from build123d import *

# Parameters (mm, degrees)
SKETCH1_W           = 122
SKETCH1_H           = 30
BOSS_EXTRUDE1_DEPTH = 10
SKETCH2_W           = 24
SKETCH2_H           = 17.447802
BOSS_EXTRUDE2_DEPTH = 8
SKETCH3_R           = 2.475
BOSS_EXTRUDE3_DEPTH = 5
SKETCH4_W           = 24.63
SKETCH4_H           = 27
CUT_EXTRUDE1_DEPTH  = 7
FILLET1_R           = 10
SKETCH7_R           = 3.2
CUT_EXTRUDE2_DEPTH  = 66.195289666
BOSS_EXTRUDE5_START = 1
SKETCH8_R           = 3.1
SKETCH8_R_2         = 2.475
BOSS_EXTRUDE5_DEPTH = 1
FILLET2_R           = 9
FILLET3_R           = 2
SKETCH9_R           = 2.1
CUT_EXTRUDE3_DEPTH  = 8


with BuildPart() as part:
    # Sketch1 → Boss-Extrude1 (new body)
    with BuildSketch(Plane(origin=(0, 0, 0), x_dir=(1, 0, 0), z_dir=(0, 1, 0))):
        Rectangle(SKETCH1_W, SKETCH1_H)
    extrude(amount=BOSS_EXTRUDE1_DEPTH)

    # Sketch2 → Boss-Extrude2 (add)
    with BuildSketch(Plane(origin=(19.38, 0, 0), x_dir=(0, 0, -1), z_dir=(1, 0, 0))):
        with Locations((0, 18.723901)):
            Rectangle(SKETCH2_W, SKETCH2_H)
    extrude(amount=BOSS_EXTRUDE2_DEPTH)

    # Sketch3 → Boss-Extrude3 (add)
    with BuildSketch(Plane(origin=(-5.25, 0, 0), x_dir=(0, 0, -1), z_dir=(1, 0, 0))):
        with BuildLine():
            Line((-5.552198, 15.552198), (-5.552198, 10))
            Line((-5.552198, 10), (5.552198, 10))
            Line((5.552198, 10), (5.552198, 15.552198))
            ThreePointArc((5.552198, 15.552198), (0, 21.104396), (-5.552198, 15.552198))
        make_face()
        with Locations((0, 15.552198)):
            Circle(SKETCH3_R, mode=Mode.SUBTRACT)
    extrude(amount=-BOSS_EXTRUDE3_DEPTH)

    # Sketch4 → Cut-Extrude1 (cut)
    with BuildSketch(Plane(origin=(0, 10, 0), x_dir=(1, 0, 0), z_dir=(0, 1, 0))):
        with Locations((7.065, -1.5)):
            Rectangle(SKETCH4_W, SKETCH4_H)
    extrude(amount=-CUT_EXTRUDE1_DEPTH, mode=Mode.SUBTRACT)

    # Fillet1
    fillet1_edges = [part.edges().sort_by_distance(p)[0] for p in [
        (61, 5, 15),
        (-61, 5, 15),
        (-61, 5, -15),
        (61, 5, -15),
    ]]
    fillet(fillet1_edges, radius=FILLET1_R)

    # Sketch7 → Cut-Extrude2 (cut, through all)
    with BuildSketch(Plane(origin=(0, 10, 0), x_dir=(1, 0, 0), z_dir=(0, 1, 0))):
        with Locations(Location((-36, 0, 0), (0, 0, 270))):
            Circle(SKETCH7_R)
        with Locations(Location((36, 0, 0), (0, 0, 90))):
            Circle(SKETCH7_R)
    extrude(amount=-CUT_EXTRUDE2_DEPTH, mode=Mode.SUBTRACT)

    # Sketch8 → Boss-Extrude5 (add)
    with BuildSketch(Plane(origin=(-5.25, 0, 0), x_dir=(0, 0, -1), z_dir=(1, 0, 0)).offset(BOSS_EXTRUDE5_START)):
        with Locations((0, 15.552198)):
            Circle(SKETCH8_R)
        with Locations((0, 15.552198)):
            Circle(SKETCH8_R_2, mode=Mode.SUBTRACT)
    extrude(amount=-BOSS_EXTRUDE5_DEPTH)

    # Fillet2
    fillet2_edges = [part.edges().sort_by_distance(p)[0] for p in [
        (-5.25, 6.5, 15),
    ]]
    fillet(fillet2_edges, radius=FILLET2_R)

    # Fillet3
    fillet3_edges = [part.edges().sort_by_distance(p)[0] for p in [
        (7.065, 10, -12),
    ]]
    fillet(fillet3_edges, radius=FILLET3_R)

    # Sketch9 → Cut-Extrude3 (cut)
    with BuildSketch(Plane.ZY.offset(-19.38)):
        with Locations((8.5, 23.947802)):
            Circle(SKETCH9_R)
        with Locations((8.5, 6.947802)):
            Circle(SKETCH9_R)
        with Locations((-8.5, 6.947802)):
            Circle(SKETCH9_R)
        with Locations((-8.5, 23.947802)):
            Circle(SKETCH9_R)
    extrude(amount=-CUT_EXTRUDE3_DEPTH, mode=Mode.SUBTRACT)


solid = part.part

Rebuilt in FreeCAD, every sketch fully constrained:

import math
import FreeCAD as App
import Part
import Sketcher
from FreeCAD import Vector
Q = App.Units.Quantity


def edges_at(feature, points):
    """Names of the edges that pass closest to the given points."""
    edges = feature.Shape.Edges
    near = lambda p: min(range(len(edges)), key=lambda i: edges[i].distToShape(Part.Vertex(*p))[0])
    return sorted({f"Edge{near(p) + 1}" for p in points})

doc = App.newDocument("Part")
body = doc.addObject("PartDesign::Body", "Body")

# Sketch on XZ plane
sketch1 = doc.addObject("Sketcher::SketchObject", "Sketch")
body.addObject(sketch1)
sketch1.AttachmentSupport = (doc.XZ_Plane, [""])
sketch1.MapMode = "FlatFace"
sketch1.addGeometry(Part.LineSegment(Vector(-61, -15, 0), Vector(-61, 15, 0)), False)
sketch1.addGeometry(Part.LineSegment(Vector(-61, 15, 0), Vector(61, 15, 0)), False)
sketch1.addGeometry(Part.LineSegment(Vector(61, 15, 0), Vector(61, -15, 0)), False)
sketch1.addGeometry(Part.LineSegment(Vector(61, -15, 0), Vector(-61, -15, 0)), False)
sketch1.addConstraint(Sketcher.Constraint("Coincident", 0, 2, 1, 1))
sketch1.addConstraint(Sketcher.Constraint("Coincident", 1, 2, 2, 1))
sketch1.addConstraint(Sketcher.Constraint("Coincident", 2, 2, 3, 1))
sketch1.addConstraint(Sketcher.Constraint("Coincident", 3, 2, 0, 1))
sketch1.addConstraint(Sketcher.Constraint("Vertical", 0))
sketch1.addConstraint(Sketcher.Constraint("Horizontal", 1))
sketch1.addConstraint(Sketcher.Constraint("Vertical", 2))
sketch1.addConstraint(Sketcher.Constraint("Horizontal", 3))
sketch1.addConstraint(Sketcher.Constraint("Symmetric", 0, 2, 2, 2, -1, 1))
sketch1.addConstraint(Sketcher.Constraint("DistanceX", 1, 1, 1, 2, Q("122 mm")))
sketch1.addConstraint(Sketcher.Constraint("DistanceY", 0, 1, 0, 2, Q("30 mm")))
pad1 = doc.addObject("PartDesign::Pad", "Pad")
body.addObject(pad1)
pad1.Profile = sketch1
pad1.Length = 10
pad1.Reversed = True

# Sketch on YZ plane
sketch2 = doc.addObject("Sketcher::SketchObject", "Sketch001")
body.addObject(sketch2)
sketch2.AttachmentSupport = (doc.YZ_Plane, [""])
sketch2.MapMode = "FlatFace"
sketch2.AttachmentOffset = App.Placement(Vector(0, 0, 19.38), App.Rotation())
sketch2.addGeometry(Part.LineSegment(Vector(27.447802, 12, 0), Vector(10, 12, 0)), False)
sketch2.addGeometry(Part.LineSegment(Vector(10, 12, 0), Vector(10, -12, 0)), False)
sketch2.addGeometry(Part.LineSegment(Vector(10, -12, 0), Vector(27.447802, -12, 0)), False)
sketch2.addGeometry(Part.LineSegment(Vector(27.447802, -12, 0), Vector(27.447802, 12, 0)), False)
sketch2.addConstraint(Sketcher.Constraint("Coincident", 0, 2, 1, 1))
sketch2.addConstraint(Sketcher.Constraint("Coincident", 1, 2, 2, 1))
sketch2.addConstraint(Sketcher.Constraint("Coincident", 2, 2, 3, 1))
sketch2.addConstraint(Sketcher.Constraint("Coincident", 3, 2, 0, 1))
sketch2.addConstraint(Sketcher.Constraint("Horizontal", 0))
sketch2.addConstraint(Sketcher.Constraint("Vertical", 1))
sketch2.addConstraint(Sketcher.Constraint("Horizontal", 2))
sketch2.addConstraint(Sketcher.Constraint("Vertical", 3))
sketch2.addConstraint(Sketcher.Constraint("DistanceY", 1, 2, 1, 1, Q("24 mm")))
sketch2.addConstraint(Sketcher.Constraint("DistanceX", -1, 1, 0, 2, Q("10 mm")))
sketch2.addConstraint(Sketcher.Constraint("DistanceY", -1, 1, 0, 2, Q("12 mm")))
sketch2.addConstraint(Sketcher.Constraint("DistanceX", 0, 2, 0, 1, Q("17.447802 mm")))
pad2 = doc.addObject("PartDesign::Pad", "Pad001")
body.addObject(pad2)
pad2.Profile = sketch2
pad2.Length = 8

# Sketch on YZ plane
sketch3 = doc.addObject("Sketcher::SketchObject", "Sketch002")
body.addObject(sketch3)
sketch3.AttachmentSupport = (doc.YZ_Plane, [""])
sketch3.MapMode = "FlatFace"
sketch3.AttachmentOffset = App.Placement(Vector(0, 0, -5.25), App.Rotation())
sketch3.addGeometry(Part.LineSegment(Vector(15.552198, 5.552198, 0), Vector(10, 5.552198, 0)), False)
sketch3.addGeometry(Part.LineSegment(Vector(10, 5.552198, 0), Vector(10, -5.552198, 0)), False)
sketch3.addGeometry(Part.LineSegment(Vector(10, -5.552198, 0), Vector(15.552198, -5.552198, 0)), False)
sketch3.addGeometry(Part.ArcOfCircle(Part.Circle(Vector(15.552198, 0, 0), Vector(0, 0, 1), 5.552198), math.radians(-90), math.radians(90)), False)
sketch3.addGeometry(Part.Circle(Vector(15.552198, 0, 0), Vector(0, 0, 1), 2.475), False)
sketch3.addConstraint(Sketcher.Constraint("Coincident", 0, 2, 1, 1))
sketch3.addConstraint(Sketcher.Constraint("Coincident", 1, 2, 2, 1))
sketch3.addConstraint(Sketcher.Constraint("Tangent", 2, 2, 3, 1))
sketch3.addConstraint(Sketcher.Constraint("Tangent", 3, 2, 0, 1))
sketch3.addConstraint(Sketcher.Constraint("Horizontal", 0))
sketch3.addConstraint(Sketcher.Constraint("Vertical", 1))
sketch3.addConstraint(Sketcher.Constraint("Horizontal", 2))
sketch3.addConstraint(Sketcher.Constraint("Coincident", 4, 3, 3, 3))
sketch3.addConstraint(Sketcher.Constraint("PointOnObject", 3, 3, -1))
sketch3.addConstraint(Sketcher.Constraint("Diameter", 4, Q("4.95 mm")))
sketch3.addConstraint(Sketcher.Constraint("DistanceX", -1, 1, 0, 2, Q("10 mm")))
sketch3.addConstraint(Sketcher.Constraint("DistanceX", 0, 2, 0, 1, Q("5.552198 mm")))
sketch3.addConstraint(Sketcher.Constraint("Radius", 3, Q("5.552198 mm")))
pad3 = doc.addObject("PartDesign::Pad", "Pad002")
body.addObject(pad3)
pad3.Profile = sketch3
pad3.Length = 5
pad3.Reversed = True

# Sketch on XZ plane
sketch4 = doc.addObject("Sketcher::SketchObject", "Sketch003")
body.addObject(sketch4)
sketch4.AttachmentSupport = (doc.XZ_Plane, [""])
sketch4.MapMode = "FlatFace"
sketch4.AttachmentOffset = App.Placement(Vector(0, 0, -10), App.Rotation())
sketch4.addGeometry(Part.LineSegment(Vector(-5.25, -12, 0), Vector(-5.25, 15, 0)), False)
sketch4.addGeometry(Part.LineSegment(Vector(-5.25, 15, 0), Vector(19.38, 15, 0)), False)
sketch4.addGeometry(Part.LineSegment(Vector(19.38, 15, 0), Vector(19.38, -12, 0)), False)
sketch4.addGeometry(Part.LineSegment(Vector(19.38, -12, 0), Vector(-5.25, -12, 0)), False)
sketch4.addConstraint(Sketcher.Constraint("Coincident", 0, 2, 1, 1))
sketch4.addConstraint(Sketcher.Constraint("Coincident", 1, 2, 2, 1))
sketch4.addConstraint(Sketcher.Constraint("Coincident", 2, 2, 3, 1))
sketch4.addConstraint(Sketcher.Constraint("Coincident", 3, 2, 0, 1))
sketch4.addConstraint(Sketcher.Constraint("Vertical", 0))
sketch4.addConstraint(Sketcher.Constraint("Horizontal", 1))
sketch4.addConstraint(Sketcher.Constraint("Vertical", 2))
sketch4.addConstraint(Sketcher.Constraint("Horizontal", 3))
sketch4.addConstraint(Sketcher.Constraint("DistanceY", 0, 1, 0, 2, Q("27 mm")))
sketch4.addConstraint(Sketcher.Constraint("DistanceY", -1, 1, 0, 2, Q("15 mm")))
sketch4.addConstraint(Sketcher.Constraint("DistanceX", 1, 1, 1, 2, Q("24.63 mm")))
sketch4.addConstraint(Sketcher.Constraint("DistanceX", 0, 2, -1, 1, Q("5.25 mm")))
pocket1 = doc.addObject("PartDesign::Pocket", "Pocket")
body.addObject(pocket1)
pocket1.Profile = sketch4
pocket1.Length = 7
pocket1.Reversed = True
doc.recompute()

fillet = doc.addObject("PartDesign::Fillet", "Fillet")
body.addObject(fillet)
fillet.Base = (pocket1, edges_at(pocket1, [
    (61, 5, 15),
    (-61, 5, 15),
    (-61, 5, -15),
    (61, 5, -15),
]))
fillet.Radius = 10

# Sketch on XZ plane
sketch5 = doc.addObject("Sketcher::SketchObject", "Sketch004")
body.addObject(sketch5)
sketch5.AttachmentSupport = (doc.XZ_Plane, [""])
sketch5.MapMode = "FlatFace"
sketch5.AttachmentOffset = App.Placement(Vector(0, 0, -10), App.Rotation())
sketch5.addGeometry(Part.Circle(Vector(-36, 0, 0), Vector(0, 0, 1), 3.2), False)
sketch5.addGeometry(Part.Circle(Vector(36, 0, 0), Vector(0, 0, 1), 3.2), False)
sketch5.addConstraint(Sketcher.Constraint("Equal", 0, 1))
sketch5.addConstraint(Sketcher.Constraint("Symmetric", 0, 3, 1, 3, -1, 1))
sketch5.addConstraint(Sketcher.Constraint("PointOnObject", 0, 3, -1))
sketch5.addConstraint(Sketcher.Constraint("Diameter", 0, Q("6.4 mm")))
sketch5.addConstraint(Sketcher.Constraint("DistanceX", 0, 3, -1, 1, Q("36 mm")))
pocket2 = doc.addObject("PartDesign::Pocket", "Pocket001")
body.addObject(pocket2)
pocket2.Profile = sketch5
pocket2.Type = "ThroughAll"
pocket2.Reversed = True

# Sketch on YZ plane
sketch6 = doc.addObject("Sketcher::SketchObject", "Sketch005")
body.addObject(sketch6)
sketch6.AttachmentSupport = (doc.YZ_Plane, [""])
sketch6.MapMode = "FlatFace"
sketch6.AttachmentOffset = App.Placement(Vector(0, 0, -4.25), App.Rotation())
sketch6.addGeometry(Part.Circle(Vector(15.552198, 0, 0), Vector(0, 0, 1), 3.1), False)
sketch6.addGeometry(Part.Circle(Vector(15.552198, 0, 0), Vector(0, 0, 1), 2.475), False)
sketch6.addConstraint(Sketcher.Constraint("Coincident", 1, 3, 0, 3))
sketch6.addConstraint(Sketcher.Constraint("PointOnObject", 0, 3, -1))
sketch6.addConstraint(Sketcher.Constraint("Diameter", 0, Q("6.2 mm")))
sketch6.addConstraint(Sketcher.Constraint("Diameter", 1, Q("4.95 mm")))
sketch6.addConstraint(Sketcher.Constraint("DistanceX", -1, 1, 0, 3, Q("15.552198 mm")))
pad4 = doc.addObject("PartDesign::Pad", "Pad003")
body.addObject(pad4)
pad4.Profile = sketch6
pad4.Length = 1
pad4.Reversed = True
doc.recompute()

fillet2 = doc.addObject("PartDesign::Fillet", "Fillet001")
body.addObject(fillet2)
fillet2.Base = (pad4, edges_at(pad4, [(-5.25, 6.5, 15)]))
fillet2.Radius = 9
doc.recompute()

fillet3 = doc.addObject("PartDesign::Fillet", "Fillet002")
body.addObject(fillet3)
fillet3.Base = (fillet2, edges_at(fillet2, [(7.065, 10, -12)]))
fillet3.Radius = 2

# Sketch on YZ plane
sketch7 = doc.addObject("Sketcher::SketchObject", "Sketch006")
body.addObject(sketch7)
sketch7.AttachmentSupport = (doc.YZ_Plane, [""])
sketch7.MapMode = "FlatFace"
sketch7.AttachmentOffset = App.Placement(Vector(0, 0, 19.38), App.Rotation())
sketch7.addGeometry(Part.Circle(Vector(23.947802, 8.5, 0), Vector(0, 0, 1), 2.1), False)
sketch7.addGeometry(Part.Circle(Vector(6.947802, 8.5, 0), Vector(0, 0, 1), 2.1), False)
sketch7.addGeometry(Part.Circle(Vector(6.947802, -8.5, 0), Vector(0, 0, 1), 2.1), False)
sketch7.addGeometry(Part.Circle(Vector(23.947802, -8.5, 0), Vector(0, 0, 1), 2.1), False)
sketch7.addConstraint(Sketcher.Constraint("Equal", 0, 1))
sketch7.addConstraint(Sketcher.Constraint("Equal", 1, 2))
sketch7.addConstraint(Sketcher.Constraint("Equal", 2, 3))
sketch7.addConstraint(Sketcher.Constraint("Symmetric", 1, 3, 2, 3, -1))
sketch7.addConstraint(Sketcher.Constraint("Symmetric", 0, 3, 3, 3, -1))
sketch7.addConstraint(Sketcher.Constraint("Horizontal", 0, 3, 1, 3))
sketch7.addConstraint(Sketcher.Constraint("Diameter", 0, Q("4.2 mm")))
sketch7.addConstraint(Sketcher.Constraint("DistanceX", 1, 3, 0, 3, Q("17 mm")))
sketch7.addConstraint(Sketcher.Constraint("DistanceY", 2, 3, 1, 3, Q("17 mm")))
sketch7.addConstraint(Sketcher.Constraint("DistanceX", -1, 1, 0, 3, Q("23.947802 mm")))
pocket3 = doc.addObject("PartDesign::Pocket", "Pocket002")
body.addObject(pocket3)
pocket3.Profile = sketch7
pocket3.Length = 8
pocket3.Reversed = True

doc.recompute()
